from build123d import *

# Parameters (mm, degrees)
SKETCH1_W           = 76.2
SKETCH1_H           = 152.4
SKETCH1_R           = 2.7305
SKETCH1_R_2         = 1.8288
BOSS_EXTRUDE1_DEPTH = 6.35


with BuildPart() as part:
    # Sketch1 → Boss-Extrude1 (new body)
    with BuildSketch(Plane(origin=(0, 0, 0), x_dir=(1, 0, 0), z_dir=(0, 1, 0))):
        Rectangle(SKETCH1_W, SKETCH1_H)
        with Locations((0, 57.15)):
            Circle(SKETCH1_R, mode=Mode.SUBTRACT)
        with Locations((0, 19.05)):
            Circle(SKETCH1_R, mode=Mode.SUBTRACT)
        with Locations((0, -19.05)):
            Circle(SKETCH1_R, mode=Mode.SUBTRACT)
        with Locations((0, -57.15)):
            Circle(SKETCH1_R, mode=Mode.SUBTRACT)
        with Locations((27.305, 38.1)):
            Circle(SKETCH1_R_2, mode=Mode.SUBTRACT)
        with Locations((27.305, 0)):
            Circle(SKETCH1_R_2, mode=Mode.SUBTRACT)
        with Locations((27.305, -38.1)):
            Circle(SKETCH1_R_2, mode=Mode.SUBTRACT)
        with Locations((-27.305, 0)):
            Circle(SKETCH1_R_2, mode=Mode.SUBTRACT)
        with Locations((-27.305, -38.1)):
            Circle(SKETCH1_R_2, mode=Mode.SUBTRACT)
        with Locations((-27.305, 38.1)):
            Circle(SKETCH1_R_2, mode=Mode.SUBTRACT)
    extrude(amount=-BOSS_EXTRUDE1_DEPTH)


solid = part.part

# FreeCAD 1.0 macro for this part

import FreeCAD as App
import Part
import Sketcher
Q = App.Units.Quantity

doc = App.newDocument("Part")
params = doc.addObject("Spreadsheet::Sheet", "Params")
for row, (alias, value) in enumerate([
    ("sketch1_width", "3 in"),
    ("sketch1_height", "6 in"),
    ("sketch1_diameter", "0.144 in"),
    ("sketch1_diameter2", "0.215 in"),
    ("pad1_length", "0.25 in"),
], start=1):
    params.set(f"A{row}", alias)
    params.set(f"B{row}", "=" + value)
    params.setAlias(f"B{row}", alias)

body = doc.addObject("PartDesign::Body", "Body")

sketch1 = body.newObject("Sketcher::SketchObject", "Sketch")
sketch1.AttachmentSupport = (doc.getObject("XZ_Plane"), [""])
sketch1.MapMode = "FlatFace"
sketch1.addGeometry([
    Part.LineSegment(App.Vector(-38.1, -76.2, 0), App.Vector(-38.1, 76.2, 0)),
    Part.LineSegment(App.Vector(-38.1, 76.2, 0), App.Vector(38.1, 76.2, 0)),
    Part.LineSegment(App.Vector(38.1, 76.2, 0), App.Vector(38.1, -76.2, 0)),
    Part.LineSegment(App.Vector(38.1, -76.2, 0), App.Vector(-38.1, -76.2, 0)),
    Part.Circle(App.Vector(-27.3, 38.1, 0), App.Vector(0, 0, 1), 1.8),
    Part.Circle(App.Vector(0, 57.1, 0), App.Vector(0, 0, 1), 2.7),
    Part.Circle(App.Vector(27.3, 38.1, 0), App.Vector(0, 0, 1), 1.8),
    Part.Circle(App.Vector(0, 19.1, 0), App.Vector(0, 0, 1), 2.7),
    Part.Circle(App.Vector(-27.3, 0, 0), App.Vector(0, 0, 1), 1.8),
    Part.Circle(App.Vector(-27.3, -38.1, 0), App.Vector(0, 0, 1), 1.8),
    Part.Circle(App.Vector(0, -19.1, 0), App.Vector(0, 0, 1), 2.7),
    Part.Circle(App.Vector(27.3, 0, 0), App.Vector(0, 0, 1), 1.8),
    Part.Circle(App.Vector(0, -57.1, 0), App.Vector(0, 0, 1), 2.7),
    Part.Circle(App.Vector(27.3, -38.1, 0), App.Vector(0, 0, 1), 1.8),
], False)
sketch1.addConstraint([
    Sketcher.Constraint("Coincident", 0, 2, 1, 1),
    Sketcher.Constraint("Coincident", 1, 2, 2, 1),
    Sketcher.Constraint("Coincident", 2, 2, 3, 1),
    Sketcher.Constraint("Coincident", 3, 2, 0, 1),
    Sketcher.Constraint("Vertical", 0),
    Sketcher.Constraint("Horizontal", 1),
    Sketcher.Constraint("Vertical", 2),
    Sketcher.Constraint("Horizontal", 3),
    Sketcher.Constraint("Equal", 4, 6),
    Sketcher.Constraint("Equal", 5, 7),
    Sketcher.Constraint("Equal", 6, 8),
    Sketcher.Constraint("Equal", 8, 9),
    Sketcher.Constraint("Equal", 7, 10),
    Sketcher.Constraint("Equal", 9, 11),
    Sketcher.Constraint("Equal", 10, 12),
    Sketcher.Constraint("Equal", 11, 13),
    Sketcher.Constraint("Symmetric", 6, 3, 9, 3, -1, 1),
    Sketcher.Constraint("Symmetric", 7, 3, 10, 3, -1, 1),
    Sketcher.Constraint("Symmetric", 8, 3, 11, 3, -1, 1),
    Sketcher.Constraint("Symmetric", 5, 3, 12, 3, -1, 1),
    Sketcher.Constraint("Symmetric", 4, 3, 13, 3, -1, 1),
    Sketcher.Constraint("Symmetric", 0, 2, 2, 2, -1, 1),
    Sketcher.Constraint("Symmetric", 4, 3, 6, 3, -2),
    Sketcher.Constraint("PointOnObject", 5, 3, -2),
    Sketcher.Constraint("PointOnObject", 7, 3, -2),
    Sketcher.Constraint("PointOnObject", 8, 3, -1),
    Sketcher.Constraint("Vertical", 4, 3, 8, 3),
    Sketcher.Constraint("DistanceX", 1, 1, 1, 2, Q("3 in")),
    Sketcher.Constraint("DistanceY", 0, 1, 0, 2, Q("6 in")),
    Sketcher.Constraint("Diameter", 4, Q("0.144 in")),
    Sketcher.Constraint("Diameter", 5, Q("0.215 in")),
    Sketcher.Constraint("DistanceY", 9, 3, 4, 3, Q("3 in")),
    Sketcher.Constraint("DistanceY", 12, 3, 7, 3, Q("3 in")),
    Sketcher.Constraint("DistanceY", 7, 3, 5, 3, Q("1.5 in")),
    Sketcher.Constraint("DistanceX", 4, 3, 6, 3, Q("2.15 in")),
])
sketch1.setExpression("Constraints[27]", "Params.sketch1_width")
sketch1.setExpression("Constraints[28]", "Params.sketch1_height")
sketch1.setExpression("Constraints[29]", "Params.sketch1_diameter")
sketch1.setExpression("Constraints[30]", "Params.sketch1_diameter2")
pad1 = body.newObject("PartDesign::Pad", "Pad")
pad1.Profile = sketch1
pad1.setExpression("Length", "Params.pad1_length")

doc.recompute()
